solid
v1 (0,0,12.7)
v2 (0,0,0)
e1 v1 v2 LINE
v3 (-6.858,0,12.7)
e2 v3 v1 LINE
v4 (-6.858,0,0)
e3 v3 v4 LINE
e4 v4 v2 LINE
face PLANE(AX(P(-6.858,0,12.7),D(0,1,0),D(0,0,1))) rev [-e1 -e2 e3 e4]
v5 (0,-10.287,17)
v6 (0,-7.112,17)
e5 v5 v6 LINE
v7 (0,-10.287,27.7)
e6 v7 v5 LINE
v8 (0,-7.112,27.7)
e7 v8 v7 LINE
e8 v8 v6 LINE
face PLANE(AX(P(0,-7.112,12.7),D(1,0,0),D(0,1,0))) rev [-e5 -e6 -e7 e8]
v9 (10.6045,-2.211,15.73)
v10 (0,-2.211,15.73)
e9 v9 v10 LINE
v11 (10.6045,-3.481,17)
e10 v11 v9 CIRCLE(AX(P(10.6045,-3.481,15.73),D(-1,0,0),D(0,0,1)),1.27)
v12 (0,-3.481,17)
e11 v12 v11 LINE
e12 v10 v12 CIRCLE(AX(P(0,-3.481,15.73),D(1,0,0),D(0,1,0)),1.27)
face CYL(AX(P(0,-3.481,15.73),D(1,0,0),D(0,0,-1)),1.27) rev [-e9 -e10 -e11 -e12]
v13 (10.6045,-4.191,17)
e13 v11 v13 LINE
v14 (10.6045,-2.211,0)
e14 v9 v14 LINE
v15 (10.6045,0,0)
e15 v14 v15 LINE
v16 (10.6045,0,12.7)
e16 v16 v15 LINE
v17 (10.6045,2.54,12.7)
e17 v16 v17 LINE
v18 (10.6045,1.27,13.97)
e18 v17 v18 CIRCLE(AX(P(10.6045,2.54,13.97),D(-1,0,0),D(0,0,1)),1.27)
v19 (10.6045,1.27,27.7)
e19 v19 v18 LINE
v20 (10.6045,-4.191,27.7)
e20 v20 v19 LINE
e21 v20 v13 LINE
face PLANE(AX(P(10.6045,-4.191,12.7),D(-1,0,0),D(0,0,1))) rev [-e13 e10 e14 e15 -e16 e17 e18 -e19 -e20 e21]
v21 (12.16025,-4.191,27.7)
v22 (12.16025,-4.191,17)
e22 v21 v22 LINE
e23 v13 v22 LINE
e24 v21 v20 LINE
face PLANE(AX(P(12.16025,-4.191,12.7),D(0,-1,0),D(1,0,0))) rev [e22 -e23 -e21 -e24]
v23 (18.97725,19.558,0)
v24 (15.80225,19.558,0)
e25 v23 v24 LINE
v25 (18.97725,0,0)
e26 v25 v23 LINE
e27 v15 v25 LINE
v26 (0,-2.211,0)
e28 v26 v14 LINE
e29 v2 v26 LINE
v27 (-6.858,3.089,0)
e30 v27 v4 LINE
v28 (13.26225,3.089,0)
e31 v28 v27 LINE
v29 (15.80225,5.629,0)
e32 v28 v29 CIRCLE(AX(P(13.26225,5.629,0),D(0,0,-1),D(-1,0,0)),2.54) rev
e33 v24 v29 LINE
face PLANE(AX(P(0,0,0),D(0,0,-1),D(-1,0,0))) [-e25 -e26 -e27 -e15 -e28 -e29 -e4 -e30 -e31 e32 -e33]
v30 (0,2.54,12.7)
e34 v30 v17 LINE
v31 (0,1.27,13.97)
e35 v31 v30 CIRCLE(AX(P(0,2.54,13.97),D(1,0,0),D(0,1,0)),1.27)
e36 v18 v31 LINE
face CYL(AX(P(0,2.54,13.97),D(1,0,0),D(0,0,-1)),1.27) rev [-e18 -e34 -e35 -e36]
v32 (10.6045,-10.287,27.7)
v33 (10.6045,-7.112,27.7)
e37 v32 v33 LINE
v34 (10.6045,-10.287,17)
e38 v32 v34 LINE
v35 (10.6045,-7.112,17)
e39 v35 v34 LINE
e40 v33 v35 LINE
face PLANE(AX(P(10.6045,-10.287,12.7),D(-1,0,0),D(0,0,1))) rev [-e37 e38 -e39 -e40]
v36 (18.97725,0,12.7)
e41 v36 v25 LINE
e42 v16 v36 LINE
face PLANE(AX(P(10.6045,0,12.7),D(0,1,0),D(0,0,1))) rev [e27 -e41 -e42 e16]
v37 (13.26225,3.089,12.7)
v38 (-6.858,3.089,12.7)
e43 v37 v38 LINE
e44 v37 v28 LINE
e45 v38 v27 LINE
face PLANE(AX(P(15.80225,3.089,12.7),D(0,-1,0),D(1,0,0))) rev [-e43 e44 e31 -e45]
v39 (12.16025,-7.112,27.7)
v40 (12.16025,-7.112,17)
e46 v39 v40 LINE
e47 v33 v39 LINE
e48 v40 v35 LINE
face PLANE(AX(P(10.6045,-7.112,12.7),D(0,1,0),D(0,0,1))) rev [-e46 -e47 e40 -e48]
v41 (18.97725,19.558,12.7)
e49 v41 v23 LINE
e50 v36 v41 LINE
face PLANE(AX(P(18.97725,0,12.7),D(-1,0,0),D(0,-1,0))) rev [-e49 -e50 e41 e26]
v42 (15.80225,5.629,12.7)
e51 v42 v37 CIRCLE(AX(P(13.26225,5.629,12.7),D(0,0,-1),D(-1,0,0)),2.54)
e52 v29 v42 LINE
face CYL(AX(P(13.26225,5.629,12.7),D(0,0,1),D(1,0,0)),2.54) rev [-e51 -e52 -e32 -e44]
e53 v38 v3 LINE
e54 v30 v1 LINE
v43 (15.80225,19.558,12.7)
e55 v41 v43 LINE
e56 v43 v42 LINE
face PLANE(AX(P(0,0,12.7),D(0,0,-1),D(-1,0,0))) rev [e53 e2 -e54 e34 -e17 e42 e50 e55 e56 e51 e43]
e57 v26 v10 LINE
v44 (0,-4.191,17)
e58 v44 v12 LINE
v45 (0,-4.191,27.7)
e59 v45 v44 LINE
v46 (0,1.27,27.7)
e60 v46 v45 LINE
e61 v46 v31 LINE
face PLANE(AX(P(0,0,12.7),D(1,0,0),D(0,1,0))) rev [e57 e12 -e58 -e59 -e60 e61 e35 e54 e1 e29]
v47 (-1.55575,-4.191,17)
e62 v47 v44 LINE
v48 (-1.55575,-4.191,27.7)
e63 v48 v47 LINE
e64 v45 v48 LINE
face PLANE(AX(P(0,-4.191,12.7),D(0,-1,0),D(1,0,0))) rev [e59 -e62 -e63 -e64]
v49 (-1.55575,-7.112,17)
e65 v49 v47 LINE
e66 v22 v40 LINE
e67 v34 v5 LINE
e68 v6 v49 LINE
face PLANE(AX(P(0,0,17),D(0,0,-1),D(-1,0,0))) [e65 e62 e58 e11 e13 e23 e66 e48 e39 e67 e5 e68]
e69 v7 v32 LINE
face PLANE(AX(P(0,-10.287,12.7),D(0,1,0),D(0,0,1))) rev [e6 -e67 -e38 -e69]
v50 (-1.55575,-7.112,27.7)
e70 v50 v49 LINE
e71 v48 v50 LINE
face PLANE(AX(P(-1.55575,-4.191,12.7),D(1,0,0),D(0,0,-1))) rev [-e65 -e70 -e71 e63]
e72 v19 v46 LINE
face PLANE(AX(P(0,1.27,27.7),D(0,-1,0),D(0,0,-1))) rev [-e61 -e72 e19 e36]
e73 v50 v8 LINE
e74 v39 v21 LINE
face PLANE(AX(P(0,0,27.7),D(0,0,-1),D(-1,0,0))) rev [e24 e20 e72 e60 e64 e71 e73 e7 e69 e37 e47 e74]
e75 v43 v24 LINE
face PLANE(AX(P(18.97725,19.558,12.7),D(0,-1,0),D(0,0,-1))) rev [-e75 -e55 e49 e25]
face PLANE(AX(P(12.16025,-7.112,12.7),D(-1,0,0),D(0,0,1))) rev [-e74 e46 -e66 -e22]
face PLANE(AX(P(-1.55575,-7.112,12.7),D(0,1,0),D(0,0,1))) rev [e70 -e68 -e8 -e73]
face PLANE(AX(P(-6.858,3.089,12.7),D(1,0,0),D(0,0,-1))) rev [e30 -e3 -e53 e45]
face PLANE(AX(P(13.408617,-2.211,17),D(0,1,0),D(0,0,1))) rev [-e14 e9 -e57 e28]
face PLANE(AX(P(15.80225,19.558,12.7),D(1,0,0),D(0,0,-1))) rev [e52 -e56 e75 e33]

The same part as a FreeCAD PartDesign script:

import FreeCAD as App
import Part
import Sketcher
from FreeCAD import Vector
Q = App.Units.Quantity


def edges_at(feature, points):
    """Names of the edges that pass closest to the given points."""
    edges = feature.Shape.Edges
    near = lambda p: min(range(len(edges)), key=lambda i: edges[i].distToShape(Part.Vertex(*p))[0])
    return sorted({f"Edge{near(p) + 1}" for p in points})


def add_polygon(sketch, points):
    """Adds a closed chain of lines whose ends are joined by coincident constraints."""
    first, n = sketch.GeometryCount, len(points)
    for a, b in zip(points, points[1:] + points[:1]):
        sketch.addGeometry(Part.LineSegment(App.Vector(*a, 0), App.Vector(*b, 0)), False)
    for i in range(n):
        sketch.addConstraint(Sketcher.Constraint("Coincident", first + i, 2, first + (i + 1) % n, 1))

doc = App.newDocument("Part")
params = doc.addObject("Spreadsheet::Sheet", "Params")
for row, (alias, value) in enumerate([
    ("sketch1_width", "0.27 in"),
    ("sketch1_height", "0.77 in"),
    ("sketch1_width2", "0.125 in"),
    ("sketch1_height2", "0.165 in"),
    ("sketch1_height3", "0.115 in"),
    ("pad1_length", "0.5 in"),
    ("fillet_radius", "0.1 in"),
    ("sketch2_height", "0.215 in"),
    ("sketch2_height2", "0.115 in"),
    ("sketch2_height3", "0.125 in"),
    ("pad2_length", "15 mm"),
    ("pocket1_length", "17 mm"),
    ("fillet2_radius", "0.05 in"),
], start=1):
    params.set(f"A{row}", alias)
    params.set(f"B{row}", "=" + value)
    params.setAlias(f"B{row}", alias)

body = doc.addObject("PartDesign::Body", "Body")

sketch1 = body.newObject("Sketcher::SketchObject", "Sketch")
sketch1.AttachmentSupport = (doc.getObject("XY_Plane"), [""])
sketch1.MapMode = "FlatFace"
add_polygon(sketch1, [(0, 0), (0, -4.2), (-1.6, -4.2), (-1.6, -7.1), (0, -7.1), (0, -10.3), (10.6, -10.3), (10.6, -7.1), (12.2, -7.1), (12.2, -4.2), (10.6, -4.2), (10.6, 0), (19, 0), (19, 19.6), (15.8, 19.6), (15.8, 3.1), (-6.9, 3.1), (-6.9, 0)])
sketch1.addConstraint([
    Sketcher.Constraint("Vertical", 0),
    Sketcher.Constraint("Horizontal", 1),
    Sketcher.Constraint("Vertical", 2),
    Sketcher.Constraint("Horizontal", 3),
    Sketcher.Constraint("Vertical", 4),
    Sketcher.Constraint("Horizontal", 5),
    Sketcher.Constraint("Vertical", 6),
    Sketcher.Constraint("Horizontal", 7),
    Sketcher.Constraint("Vertical", 8),
    Sketcher.Constraint("Horizontal", 9),
    Sketcher.Constraint("Vertical", 10),
    Sketcher.Constraint("Horizontal", 11),
    Sketcher.Constraint("Vertical", 12),
    Sketcher.Constraint("Horizontal", 13),
    Sketcher.Constraint("Vertical", 14),
    Sketcher.Constraint("Horizontal", 15),
    Sketcher.Constraint("Vertical", 16),
    Sketcher.Constraint("Horizontal", 17),
    Sketcher.Constraint("Coincident", 17, 2, -1, 1),
    Sketcher.Constraint("PointOnObject", 3, 2, -2),
    Sketcher.Constraint("PointOnObject", 10, 2, -1),
    Sketcher.Constraint("Horizontal", 3, 2, 6, 2),
    Sketcher.Constraint("Horizontal", 1, 2, 8, 2),
    Sketcher.Constraint("Vertical", 6, 2, 9, 2),
    Sketcher.Constraint("Equal", 3, 7),
    Sketcher.Constraint("Equal", 13, 4),
    Sketcher.Constraint("DistanceX", 17, 1, 17, 2, Q("0.27 in")),
    Sketcher.Constraint("DistanceY", 12, 1, 12, 2, Q("0.77 in")),
    Sketcher.Constraint("DistanceX", 13, 2, 13, 1, Q("0.125 in")),
    Sketcher.Constraint("DistanceY", 0, 2, 0, 1, Q("0.165 in")),
    Sketcher.Constraint("DistanceY", 2, 2, 2, 1, Q("0.115 in")),
    Sketcher.Constraint("DistanceX", 5, 1, 5, 2, Q("0.4175 in")),
    Sketcher.Constraint("DistanceY", 14, 2, 14, 1, Q("16.469 mm")),
    Sketcher.Constraint("DistanceX", 1, 2, 1, 1, Q("1.55575 mm")),
    Sketcher.Constraint("DistanceX", 11, 1, 11, 2, Q("8.37275 mm")),
])
sketch1.setExpression("Constraints[44]", "Params.sketch1_width")
sketch1.setExpression("Constraints[45]", "Params.sketch1_height")
sketch1.setExpression("Constraints[46]", "Params.sketch1_width2")
sketch1.setExpression("Constraints[47]", "Params.sketch1_height2")
sketch1.setExpression("Constraints[48]", "Params.sketch1_height3")
pad1 = body.newObject("PartDesign::Pad", "Pad")
pad1.Profile = sketch1
pad1.setExpression("Length", "Params.pad1_length")
doc.recompute()

fillet = body.newObject("PartDesign::Fillet", "Fillet")
fillet.Base = (pad1, edges_at(pad1, [(15.802, 3.089, 6.35)]))
fillet.setExpression("Radius", "Params.fillet_radius")

sketch2 = body.newObject("Sketcher::SketchObject", "Sketch001")
sketch2.AttachmentSupport = (doc.getObject("XY_Plane"), [""])
sketch2.MapMode = "FlatFace"
sketch2.AttachmentOffset = App.Placement(Vector(0, 0, 0.5 * 25.4), App.Rotation())
add_polygon(sketch2, [(0, 1.3), (0, -4.2), (-1.6, -4.2), (-1.6, -7.1), (0, -7.1), (0, -10.3), (10.6, -10.3), (10.6, -7.1), (12.2, -7.1), (12.2, -4.2), (10.6, -4.2), (10.6, 1.3)])
sketch2.addConstraint([
    Sketcher.Constraint("Vertical", 0),
    Sketcher.Constraint("Horizontal", 1),
    Sketcher.Constraint("Vertical", 2),
    Sketcher.Constraint("Horizontal", 3),
    Sketcher.Constraint("Vertical", 4),
    Sketcher.Constraint("Horizontal", 5),
    Sketcher.Constraint("Vertical", 6),
    Sketcher.Constraint("Horizontal", 7),
    Sketcher.Constraint("Vertical", 8),
    Sketcher.Constraint("Horizontal", 9),
    Sketcher.Constraint("Vertical", 10),
    Sketcher.Constraint("Horizontal", 11),
    Sketcher.Constraint("PointOnObject", 0, 2, -2),
    Sketcher.Constraint("PointOnObject", 3, 2, -2),
    Sketcher.Constraint("Horizontal", 3, 2, 6, 2),
    Sketcher.Constraint("Horizontal", 1, 2, 8, 2),
    Sketcher.Constraint("Vertical", 6, 2, 9, 2),
    Sketcher.Constraint("Equal", 3, 7),
    Sketcher.Constraint("DistanceY", 0, 2, 0, 1, Q("0.215 in")),
    Sketcher.Constraint("DistanceY", 2, 2, 2, 1, Q("0.115 in")),
    Sketcher.Constraint("DistanceY", 4, 2, 4, 1, Q("0.125 in")),
    Sketcher.Constraint("DistanceY", 2, 2, -1, 1, Q("0.28 in")),
    Sketcher.Constraint("DistanceX", 5, 1, 5, 2, Q("0.4175 in")),
    Sketcher.Constraint("DistanceX", 1, 2, 1, 1, Q("1.55575 mm")),
])
sketch2.setExpression("Constraints[30]", "Params.sketch2_height")
sketch2.setExpression("Constraints[31]", "Params.sketch2_height2")
sketch2.setExpression("Constraints[32]", "Params.sketch2_height3")
pad2 = body.newObject("PartDesign::Pad", "Pad001")
pad2.Profile = sketch2
pad2.setExpression("Length", "Params.pad2_length")

sketch3 = body.newObject("Sketcher::SketchObject", "Sketch002")
sketch3.AttachmentSupport = (doc.getObject("XY_Plane"), [""])
sketch3.MapMode = "FlatFace"
add_polygon(sketch3, [(13, -2), (13, -14), (-7, -14), (-7, -2)])
sketch3.addConstraint([
    Sketcher.Constraint("Vertical", 0),
    Sketcher.Constraint("Horizontal", 1),
    Sketcher.Constraint("Vertical", 2),
    Sketcher.Constraint("Horizontal", 3),
    Sketcher.Constraint("DistanceX", 1, 2, 1, 1, Q("20.438011 mm")),
    Sketcher.Constraint("DistanceY", 2, 2, -1, 1, Q("2.211 mm")),
    Sketcher.Constraint("DistanceY", 0, 2, 0, 1, Q("11.408302 mm")),
    Sketcher.Constraint("DistanceX", -1, 1, 0, 2, Q("13.408617 mm")),
])
pocket1 = body.newObject("PartDesign::Pocket", "Pocket")
pocket1.Profile = sketch3
pocket1.setExpression("Length", "Params.pocket1_length")
pocket1.Reversed = True
doc.recompute()

fillet2 = body.newObject("PartDesign::Fillet", "Fillet001")
fillet2.Base = (pocket1, edges_at(pocket1, [(5.302, -2.211, 17), (5.302, 1.27, 12.7)]))
fillet2.setExpression("Radius", "Params.fillet2_radius")

doc.recompute()
